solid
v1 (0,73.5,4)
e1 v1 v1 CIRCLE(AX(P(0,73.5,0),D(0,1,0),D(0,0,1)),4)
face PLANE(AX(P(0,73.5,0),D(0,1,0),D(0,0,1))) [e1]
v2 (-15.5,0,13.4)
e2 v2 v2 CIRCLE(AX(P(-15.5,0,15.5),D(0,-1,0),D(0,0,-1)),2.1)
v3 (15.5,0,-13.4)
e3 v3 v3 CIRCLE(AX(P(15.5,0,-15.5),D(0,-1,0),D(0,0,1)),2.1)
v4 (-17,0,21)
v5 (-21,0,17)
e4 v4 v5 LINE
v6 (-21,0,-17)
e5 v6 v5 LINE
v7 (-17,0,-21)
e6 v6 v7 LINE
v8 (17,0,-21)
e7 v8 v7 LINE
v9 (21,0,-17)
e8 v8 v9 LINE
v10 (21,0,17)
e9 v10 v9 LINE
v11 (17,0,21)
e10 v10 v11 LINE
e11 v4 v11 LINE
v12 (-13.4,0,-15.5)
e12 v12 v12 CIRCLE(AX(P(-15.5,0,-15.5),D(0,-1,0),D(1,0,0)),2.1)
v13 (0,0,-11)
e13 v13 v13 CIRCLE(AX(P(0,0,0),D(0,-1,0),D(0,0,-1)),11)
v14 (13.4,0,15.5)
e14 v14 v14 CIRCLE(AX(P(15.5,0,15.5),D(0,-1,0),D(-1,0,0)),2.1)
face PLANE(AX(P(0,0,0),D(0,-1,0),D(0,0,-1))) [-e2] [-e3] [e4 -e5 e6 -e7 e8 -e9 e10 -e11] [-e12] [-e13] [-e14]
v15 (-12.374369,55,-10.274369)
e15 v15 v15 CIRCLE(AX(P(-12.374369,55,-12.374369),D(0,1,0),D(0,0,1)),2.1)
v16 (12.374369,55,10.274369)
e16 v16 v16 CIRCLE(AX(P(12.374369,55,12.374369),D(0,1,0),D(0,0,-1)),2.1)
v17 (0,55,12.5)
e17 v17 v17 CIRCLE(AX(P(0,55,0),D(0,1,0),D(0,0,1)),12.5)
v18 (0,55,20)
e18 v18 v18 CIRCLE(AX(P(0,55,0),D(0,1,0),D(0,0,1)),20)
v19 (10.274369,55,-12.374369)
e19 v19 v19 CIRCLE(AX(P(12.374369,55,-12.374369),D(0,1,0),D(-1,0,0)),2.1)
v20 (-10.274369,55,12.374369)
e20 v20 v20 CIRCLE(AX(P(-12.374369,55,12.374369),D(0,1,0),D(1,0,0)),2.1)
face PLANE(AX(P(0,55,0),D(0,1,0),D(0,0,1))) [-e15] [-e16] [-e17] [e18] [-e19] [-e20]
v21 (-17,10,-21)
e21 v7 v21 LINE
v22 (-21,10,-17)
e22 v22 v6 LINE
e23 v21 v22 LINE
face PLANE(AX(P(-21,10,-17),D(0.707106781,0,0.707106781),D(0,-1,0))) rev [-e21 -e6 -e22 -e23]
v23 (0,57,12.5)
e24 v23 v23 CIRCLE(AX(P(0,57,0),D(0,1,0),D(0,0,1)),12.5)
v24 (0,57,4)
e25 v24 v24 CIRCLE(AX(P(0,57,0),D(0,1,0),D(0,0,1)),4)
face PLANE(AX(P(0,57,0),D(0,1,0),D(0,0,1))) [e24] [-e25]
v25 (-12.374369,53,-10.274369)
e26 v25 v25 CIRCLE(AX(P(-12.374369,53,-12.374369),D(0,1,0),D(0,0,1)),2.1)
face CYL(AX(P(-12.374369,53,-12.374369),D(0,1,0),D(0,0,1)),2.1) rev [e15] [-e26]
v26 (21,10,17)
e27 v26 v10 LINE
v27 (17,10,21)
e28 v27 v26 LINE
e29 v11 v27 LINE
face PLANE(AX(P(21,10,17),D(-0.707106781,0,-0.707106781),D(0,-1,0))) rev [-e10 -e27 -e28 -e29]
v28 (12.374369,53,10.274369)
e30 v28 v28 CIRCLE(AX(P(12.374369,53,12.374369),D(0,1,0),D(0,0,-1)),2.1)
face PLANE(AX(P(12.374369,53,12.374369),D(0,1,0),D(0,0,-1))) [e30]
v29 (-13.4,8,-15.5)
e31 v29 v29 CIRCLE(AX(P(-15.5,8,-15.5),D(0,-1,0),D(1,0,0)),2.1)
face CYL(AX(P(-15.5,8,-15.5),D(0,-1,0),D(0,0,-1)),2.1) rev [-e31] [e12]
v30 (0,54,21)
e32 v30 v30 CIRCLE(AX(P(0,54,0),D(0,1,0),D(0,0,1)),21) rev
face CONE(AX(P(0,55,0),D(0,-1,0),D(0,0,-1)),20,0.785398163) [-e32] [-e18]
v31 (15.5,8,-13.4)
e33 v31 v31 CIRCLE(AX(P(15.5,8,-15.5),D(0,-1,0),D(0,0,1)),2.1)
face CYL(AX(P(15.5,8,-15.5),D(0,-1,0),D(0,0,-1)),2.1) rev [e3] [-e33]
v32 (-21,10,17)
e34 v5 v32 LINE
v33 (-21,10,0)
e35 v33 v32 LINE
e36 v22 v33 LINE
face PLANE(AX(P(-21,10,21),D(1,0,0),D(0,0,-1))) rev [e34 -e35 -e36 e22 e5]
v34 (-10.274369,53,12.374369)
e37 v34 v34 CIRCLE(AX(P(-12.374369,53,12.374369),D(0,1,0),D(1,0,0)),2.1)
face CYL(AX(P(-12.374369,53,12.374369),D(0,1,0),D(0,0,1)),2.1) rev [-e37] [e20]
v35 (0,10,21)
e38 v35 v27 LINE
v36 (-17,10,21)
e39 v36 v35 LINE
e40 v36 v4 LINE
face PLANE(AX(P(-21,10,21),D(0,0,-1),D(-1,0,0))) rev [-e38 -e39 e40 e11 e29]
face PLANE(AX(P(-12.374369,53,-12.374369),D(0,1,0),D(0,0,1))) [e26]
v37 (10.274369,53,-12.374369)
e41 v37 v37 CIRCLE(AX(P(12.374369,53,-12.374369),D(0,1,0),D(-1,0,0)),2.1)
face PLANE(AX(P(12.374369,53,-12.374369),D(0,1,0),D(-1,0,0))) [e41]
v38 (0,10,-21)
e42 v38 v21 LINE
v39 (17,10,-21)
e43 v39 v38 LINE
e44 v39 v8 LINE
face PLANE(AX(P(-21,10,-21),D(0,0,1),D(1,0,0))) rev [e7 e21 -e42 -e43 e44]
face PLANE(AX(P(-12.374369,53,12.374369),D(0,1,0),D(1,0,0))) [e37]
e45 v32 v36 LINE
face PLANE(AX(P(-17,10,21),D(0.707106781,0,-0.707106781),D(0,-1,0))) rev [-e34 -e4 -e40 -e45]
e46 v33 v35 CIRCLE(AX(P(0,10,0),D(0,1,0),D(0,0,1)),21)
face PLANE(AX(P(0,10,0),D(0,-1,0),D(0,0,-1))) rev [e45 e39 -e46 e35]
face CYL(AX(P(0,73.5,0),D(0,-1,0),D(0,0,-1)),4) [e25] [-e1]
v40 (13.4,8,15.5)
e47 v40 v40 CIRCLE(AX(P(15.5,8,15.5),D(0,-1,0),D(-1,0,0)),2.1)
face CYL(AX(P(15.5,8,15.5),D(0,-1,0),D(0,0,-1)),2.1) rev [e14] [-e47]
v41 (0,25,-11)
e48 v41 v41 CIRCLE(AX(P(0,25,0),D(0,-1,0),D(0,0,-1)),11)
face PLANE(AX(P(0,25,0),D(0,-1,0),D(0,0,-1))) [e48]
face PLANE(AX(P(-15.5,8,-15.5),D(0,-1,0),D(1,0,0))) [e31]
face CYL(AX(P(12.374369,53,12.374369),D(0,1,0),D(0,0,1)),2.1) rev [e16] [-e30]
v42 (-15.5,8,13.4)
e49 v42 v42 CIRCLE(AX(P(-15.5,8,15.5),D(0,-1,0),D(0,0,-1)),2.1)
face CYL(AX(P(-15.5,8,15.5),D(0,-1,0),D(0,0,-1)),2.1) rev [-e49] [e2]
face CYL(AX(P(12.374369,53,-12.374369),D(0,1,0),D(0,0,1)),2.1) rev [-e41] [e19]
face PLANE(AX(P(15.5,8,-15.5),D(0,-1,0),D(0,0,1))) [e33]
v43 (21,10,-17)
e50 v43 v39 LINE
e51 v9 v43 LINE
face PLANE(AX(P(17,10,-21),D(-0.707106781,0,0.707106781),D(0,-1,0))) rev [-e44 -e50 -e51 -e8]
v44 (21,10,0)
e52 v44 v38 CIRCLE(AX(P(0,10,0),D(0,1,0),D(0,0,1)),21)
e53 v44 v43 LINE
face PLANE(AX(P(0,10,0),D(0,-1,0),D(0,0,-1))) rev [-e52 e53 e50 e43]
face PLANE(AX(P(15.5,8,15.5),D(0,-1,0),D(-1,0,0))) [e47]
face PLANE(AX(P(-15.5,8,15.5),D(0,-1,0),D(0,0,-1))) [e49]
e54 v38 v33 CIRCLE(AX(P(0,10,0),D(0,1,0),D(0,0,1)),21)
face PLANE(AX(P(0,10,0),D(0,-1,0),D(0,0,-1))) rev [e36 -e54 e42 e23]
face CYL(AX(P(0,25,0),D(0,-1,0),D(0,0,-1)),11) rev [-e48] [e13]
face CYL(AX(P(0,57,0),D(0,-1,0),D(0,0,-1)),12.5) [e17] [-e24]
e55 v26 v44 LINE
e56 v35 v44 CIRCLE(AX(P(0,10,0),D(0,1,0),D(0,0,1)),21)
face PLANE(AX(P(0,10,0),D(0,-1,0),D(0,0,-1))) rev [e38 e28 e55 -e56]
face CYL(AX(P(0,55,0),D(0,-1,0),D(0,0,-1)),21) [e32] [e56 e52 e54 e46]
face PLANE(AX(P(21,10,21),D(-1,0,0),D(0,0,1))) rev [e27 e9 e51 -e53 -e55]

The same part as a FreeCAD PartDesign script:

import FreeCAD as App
import Part
import Sketcher
from FreeCAD import Vector


def edges_at(feature, points):
    """Names of the edges that pass closest to the given points."""
    edges = feature.Shape.Edges
    near = lambda p: min(range(len(edges)), key=lambda i: edges[i].distToShape(Part.Vertex(*p))[0])
    return sorted({f"Edge{near(p) + 1}" for p in points})


def add_polygon(sketch, points):
    """Adds a closed chain of lines whose ends are joined by coincident constraints."""
    first, n = sketch.GeometryCount, len(points)
    for a, b in zip(points, points[1:] + points[:1]):
        sketch.addGeometry(Part.LineSegment(App.Vector(*a, 0), App.Vector(*b, 0)), False)
    for i in range(n):
        sketch.addConstraint(Sketcher.Constraint("Coincident", first + i, 2, first + (i + 1) % n, 1))

doc = App.newDocument("Part")
params = doc.addObject("Spreadsheet::Sheet", "Params")
for row, (alias, value) in enumerate([
    ("sketch1_width", "42 mm"),
    ("pad1_length", "10 mm"),
    ("sketch2_diameter", "42 mm"),
    ("pad2_length", "45 mm"),
    ("sketch3_diameter", "8 mm"),
    ("pad3_length", "18.5 mm"),
    ("chamfer_size", "4 mm"),
    ("sketch4_diameter", "22 mm"),
    ("pocket1_length", "25 mm"),
    ("sketch5_diameter", "25 mm"),
    ("pad4_length", "2 mm"),
    ("chamfer2_size", "1 mm"),
    ("sketch6_diameter", "4.2 mm"),
    ("pocket2_length", "2 mm"),
    ("sketch7_diameter", "4.2 mm"),
    ("pocket3_length", "8 mm"),
], start=1):
    params.set(f"A{row}", alias)
    params.set(f"B{row}", "=" + value)
    params.setAlias(f"B{row}", alias)

body = doc.addObject("PartDesign::Body", "Body")

sketch1 = body.newObject("Sketcher::SketchObject", "Sketch")
sketch1.AttachmentSupport = (doc.getObject("XZ_Plane"), [""])
sketch1.MapMode = "FlatFace"
add_polygon(sketch1, [(-21, -21), (-21, 21), (21, 21), (21, -21)])
sketch1.addConstraint(Sketcher.Constraint("Vertical", 0))
sketch1.addConstraint(Sketcher.Constraint("Horizontal", 1))
sketch1.addConstraint(Sketcher.Constraint("Vertical", 2))
sketch1.addConstraint(Sketcher.Constraint("Horizontal", 3))
sketch1.addConstraint(Sketcher.Constraint("Symmetric", 0, 2, 2, 2, -1, 1))
sketch1.addConstraint(Sketcher.Constraint("Equal", 3, 0))
sketch1.addConstraint(Sketcher.Constraint("DistanceX", 1, 1, 1, 2, 42.0))
sketch1.setExpression("Constraints[10]", "Params.sketch1_width")
pad1 = body.newObject("PartDesign::Pad", "Pad")
pad1.Profile = sketch1
pad1.setExpression("Length", "Params.pad1_length")
pad1.Reversed = True

sketch2 = body.newObject("Sketcher::SketchObject", "Sketch001")
sketch2.AttachmentSupport = (doc.getObject("XZ_Plane"), [""])
sketch2.MapMode = "FlatFace"
sketch2.AttachmentOffset = App.Placement(Vector(0, 0, -10), App.Rotation())
sketch2.addGeometry(Part.Circle(Vector(0, 0, 0), Vector(0, 0, 1), 21), False)
sketch2.addConstraint(Sketcher.Constraint("Coincident", 0, 3, -1, 1))
sketch2.addConstraint(Sketcher.Constraint("Diameter", 0, 42.0))
sketch2.setExpression("Constraints[1]", "Params.sketch2_diameter")
pad2 = body.newObject("PartDesign::Pad", "Pad001")
pad2.Profile = sketch2
pad2.setExpression("Length", "Params.pad2_length")
pad2.Reversed = True

sketch3 = body.newObject("Sketcher::SketchObject", "Sketch002")
sketch3.AttachmentSupport = (doc.getObject("XZ_Plane"), [""])
sketch3.MapMode = "FlatFace"
sketch3.AttachmentOffset = App.Placement(Vector(0, 0, -55), App.Rotation())
sketch3.addGeometry(Part.Circle(Vector(0, 0, 0), Vector(0, 0, 1), 4), False)
sketch3.addConstraint(Sketcher.Constraint("Coincident", 0, 3, -1, 1))
sketch3.addConstraint(Sketcher.Constraint("Diameter", 0, 8.0))
sketch3.setExpression("Constraints[1]", "Params.sketch3_diameter")
pad3 = body.newObject("PartDesign::Pad", "Pad002")
pad3.Profile = sketch3
pad3.setExpression("Length", "Params.pad3_length")
pad3.Reversed = True
doc.recompute()

chamfer = body.newObject("PartDesign::Chamfer", "Chamfer")
chamfer.Base = (pad3, edges_at(pad3, [
    (21, 5, 21),
    (-21, 5, 21),
    (-21, 5, -21),
    (21, 5, -21),
]))
chamfer.setExpression("Size", "Params.chamfer_size")

sketch4 = body.newObject("Sketcher::SketchObject", "Sketch003")
sketch4.AttachmentSupport = (doc.getObject("XZ_Plane"), [""])
sketch4.MapMode = "FlatFace"
sketch4.addGeometry(Part.Circle(Vector(0, 0, 0), Vector(0, 0, 1), 11), False)
sketch4.addConstraint(Sketcher.Constraint("Coincident", 0, 3, -1, 1))
sketch4.addConstraint(Sketcher.Constraint("Diameter", 0, 22.0))
sketch4.setExpression("Constraints[1]", "Params.sketch4_diameter")
pocket1 = body.newObject("PartDesign::Pocket", "Pocket")
pocket1.Profile = sketch4
pocket1.setExpression("Length", "Params.pocket1_length")

sketch5 = body.newObject("Sketcher::SketchObject", "Sketch004")
sketch5.AttachmentSupport = (doc.getObject("XZ_Plane"), [""])
sketch5.MapMode = "FlatFace"
sketch5.AttachmentOffset = App.Placement(Vector(0, 0, -55), App.Rotation())
sketch5.addGeometry(Part.Circle(Vector(0, 0, 0), Vector(0, 0, 1), 12), False)
sketch5.addConstraint(Sketcher.Constraint("Coincident", 0, 3, -1, 1))
sketch5.addConstraint(Sketcher.Constraint("Diameter", 0, 25.0))
sketch5.setExpression("Constraints[1]", "Params.sketch5_diameter")
pad4 = body.newObject("PartDesign::Pad", "Pad003")
pad4.Profile = sketch5
pad4.setExpression("Length", "Params.pad4_length")
pad4.Reversed = True
doc.recompute()

chamfer2 = body.newObject("PartDesign::Chamfer", "Chamfer001")
chamfer2.Base = (pad4, edges_at(pad4, [(-21, 55, 0)]))
chamfer2.setExpression("Size", "Params.chamfer2_size")

sketch6 = body.newObject("Sketcher::SketchObject", "Sketch005")
sketch6.AttachmentSupport = (doc.getObject("XZ_Plane"), [""])
sketch6.MapMode = "FlatFace"
sketch6.AttachmentOffset = App.Placement(Vector(0, 0, -55), App.Rotation())
sketch6.addGeometry(Part.Circle(Vector(-12.4, -12.4, 0), Vector(0, 0, 1), 2.1), False)
sketch6.addConstraint(Sketcher.Constraint("Diameter", 0, 4.2))
sketch6.addConstraint(Sketcher.Constraint("DistanceX", 0, 3, -1, 1, 12.374369))
sketch6.addConstraint(Sketcher.Constraint("DistanceY", 0, 3, -1, 1, 12.374369))
sketch6.setExpression("Constraints[0]", "Params.sketch6_diameter")
pocket2 = body.newObject("PartDesign::Pocket", "Pocket001")
pocket2.Profile = sketch6
pocket2.setExpression("Length", "Params.pocket2_length")
pocket2.Reversed = True
doc.recompute()

polarpattern = body.newObject("PartDesign::PolarPattern", "PolarPattern")
polarpattern.Originals = [pocket2]
polarpattern.Axis = (doc.getObject("Y_Axis"), [""])
polarpattern.Angle = 360
polarpattern.Occurrences = 4
body.Tip = polarpattern

sketch7 = body.newObject("Sketcher::SketchObject", "Sketch006")
sketch7.AttachmentSupport = (doc.getObject("XZ_Plane"), [""])
sketch7.MapMode = "FlatFace"
sketch7.addGeometry(Part.Circle(Vector(-15.5, 15.5, 0), Vector(0, 0, 1), 2.1), False)
sketch7.addConstraint(Sketcher.Constraint("Diameter", 0, 4.2))
sketch7.addConstraint(Sketcher.Constraint("DistanceX", 0, 3, -1, 1, 15.5))
sketch7.addConstraint(Sketcher.Constraint("DistanceY", -1, 1, 0, 3, 15.5))
sketch7.setExpression("Constraints[0]", "Params.sketch7_diameter")
pocket3 = body.newObject("PartDesign::Pocket", "Pocket002")
pocket3.Profile = sketch7
pocket3.setExpression("Length", "Params.pocket3_length")
doc.recompute()

polarpattern2 = body.newObject("PartDesign::PolarPattern", "PolarPattern001")
polarpattern2.Originals = [pocket3]
polarpattern2.Axis = (doc.getObject("Y_Axis"), [""])
polarpattern2.Angle = 360
polarpattern2.Occurrences = 4
body.Tip = polarpattern2

doc.recompute()
